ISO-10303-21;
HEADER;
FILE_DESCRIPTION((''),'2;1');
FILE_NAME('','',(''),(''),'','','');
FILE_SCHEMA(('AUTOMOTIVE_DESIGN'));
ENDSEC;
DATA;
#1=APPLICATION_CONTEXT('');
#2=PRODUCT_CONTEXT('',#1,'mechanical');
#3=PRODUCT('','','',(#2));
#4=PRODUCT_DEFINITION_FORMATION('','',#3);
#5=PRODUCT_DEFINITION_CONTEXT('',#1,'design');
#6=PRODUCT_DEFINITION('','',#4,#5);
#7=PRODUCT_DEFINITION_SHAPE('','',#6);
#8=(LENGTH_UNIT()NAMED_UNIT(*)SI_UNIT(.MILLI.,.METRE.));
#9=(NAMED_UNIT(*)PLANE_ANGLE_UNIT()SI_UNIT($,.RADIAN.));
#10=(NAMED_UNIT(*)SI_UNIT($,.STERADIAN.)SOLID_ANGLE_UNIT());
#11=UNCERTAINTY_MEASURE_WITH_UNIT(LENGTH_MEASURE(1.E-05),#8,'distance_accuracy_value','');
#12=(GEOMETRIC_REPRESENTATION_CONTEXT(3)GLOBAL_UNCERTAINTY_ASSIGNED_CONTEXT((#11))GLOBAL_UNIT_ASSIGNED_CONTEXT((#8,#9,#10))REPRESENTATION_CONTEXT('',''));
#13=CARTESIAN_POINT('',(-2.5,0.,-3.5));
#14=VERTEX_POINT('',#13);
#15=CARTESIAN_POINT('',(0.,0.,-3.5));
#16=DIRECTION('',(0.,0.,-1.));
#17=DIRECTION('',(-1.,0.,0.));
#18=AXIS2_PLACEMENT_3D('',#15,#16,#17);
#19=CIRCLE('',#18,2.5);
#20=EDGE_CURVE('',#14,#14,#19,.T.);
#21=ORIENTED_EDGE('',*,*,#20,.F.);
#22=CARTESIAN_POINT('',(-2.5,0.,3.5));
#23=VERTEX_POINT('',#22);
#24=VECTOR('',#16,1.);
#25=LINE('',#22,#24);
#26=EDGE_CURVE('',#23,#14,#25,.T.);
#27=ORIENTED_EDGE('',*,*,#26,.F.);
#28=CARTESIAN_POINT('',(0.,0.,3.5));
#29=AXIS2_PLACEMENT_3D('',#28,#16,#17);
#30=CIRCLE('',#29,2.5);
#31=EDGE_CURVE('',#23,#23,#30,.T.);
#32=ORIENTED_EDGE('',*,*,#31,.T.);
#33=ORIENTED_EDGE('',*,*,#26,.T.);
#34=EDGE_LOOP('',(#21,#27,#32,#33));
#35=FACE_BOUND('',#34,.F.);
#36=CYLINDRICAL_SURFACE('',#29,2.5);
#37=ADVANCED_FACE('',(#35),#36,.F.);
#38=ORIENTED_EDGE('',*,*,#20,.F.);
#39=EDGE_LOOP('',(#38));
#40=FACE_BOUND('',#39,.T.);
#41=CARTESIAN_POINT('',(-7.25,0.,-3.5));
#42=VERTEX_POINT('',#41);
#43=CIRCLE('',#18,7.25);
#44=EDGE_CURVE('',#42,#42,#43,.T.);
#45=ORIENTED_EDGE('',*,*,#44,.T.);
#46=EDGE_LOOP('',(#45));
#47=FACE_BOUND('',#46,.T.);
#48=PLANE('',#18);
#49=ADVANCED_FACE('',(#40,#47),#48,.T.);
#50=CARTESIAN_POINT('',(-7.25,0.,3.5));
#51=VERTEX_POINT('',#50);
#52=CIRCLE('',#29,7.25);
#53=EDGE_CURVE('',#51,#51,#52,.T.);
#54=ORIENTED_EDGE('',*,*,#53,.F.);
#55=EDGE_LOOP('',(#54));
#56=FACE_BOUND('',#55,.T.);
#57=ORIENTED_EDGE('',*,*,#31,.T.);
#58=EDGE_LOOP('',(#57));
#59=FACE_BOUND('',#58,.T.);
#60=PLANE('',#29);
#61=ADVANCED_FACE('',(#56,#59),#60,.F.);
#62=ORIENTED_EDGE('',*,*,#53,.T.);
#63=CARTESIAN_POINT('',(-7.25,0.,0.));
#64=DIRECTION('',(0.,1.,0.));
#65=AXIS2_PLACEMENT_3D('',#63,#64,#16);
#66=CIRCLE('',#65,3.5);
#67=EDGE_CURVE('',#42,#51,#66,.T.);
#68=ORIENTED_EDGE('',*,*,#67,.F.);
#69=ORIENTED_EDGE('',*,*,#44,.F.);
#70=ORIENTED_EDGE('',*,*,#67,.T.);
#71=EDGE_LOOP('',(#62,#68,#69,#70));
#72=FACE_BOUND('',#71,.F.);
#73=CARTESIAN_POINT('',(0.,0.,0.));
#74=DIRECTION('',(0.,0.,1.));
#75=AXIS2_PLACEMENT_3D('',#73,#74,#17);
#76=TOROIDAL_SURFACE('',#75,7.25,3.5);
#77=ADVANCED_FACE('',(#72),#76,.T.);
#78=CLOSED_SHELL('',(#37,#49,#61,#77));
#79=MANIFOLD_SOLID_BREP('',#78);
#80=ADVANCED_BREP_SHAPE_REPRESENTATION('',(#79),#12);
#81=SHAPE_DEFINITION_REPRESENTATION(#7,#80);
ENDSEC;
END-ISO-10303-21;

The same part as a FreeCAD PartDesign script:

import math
import FreeCAD as App
import Part
import Sketcher
from FreeCAD import Vector
Q = App.Units.Quantity

doc = App.newDocument("Part")
body = doc.addObject("PartDesign::Body", "Body")

# Sketch on XZ plane
sketch1 = body.newObject("Sketcher::SketchObject", "Sketch")
sketch1.AttachmentSupport = (doc.getObject("XZ_Plane"), [""])
sketch1.MapMode = "FlatFace"
sketch1.addGeometry([
    Part.LineSegment(Vector(-7.2, 3.5, 0), Vector(-2.5, 3.5, 0)),
    Part.LineSegment(Vector(-2.5, 3.5, 0), Vector(-2.5, -3.5, 0)),
    Part.LineSegment(Vector(-2.5, -3.5, 0), Vector(-7.2, -3.5, 0)),
    Part.ArcOfCircle(Part.Circle(Vector(-7.2, 0, 0), Vector(0, 0, 1), 3.5), math.radians(90), math.radians(270)),
], False)
sketch1.addConstraint([
    Sketcher.Constraint("Coincident", 0, 2, 1, 1),
    Sketcher.Constraint("Coincident", 1, 2, 2, 1),
    Sketcher.Constraint("Tangent", 2, 2, 3, 2),
    Sketcher.Constraint("Tangent", 3, 1, 0, 1),
    Sketcher.Constraint("Horizontal", 0),
    Sketcher.Constraint("Vertical", 1),
    Sketcher.Constraint("Horizontal", 2),
    Sketcher.Constraint("PointOnObject", 3, 3, -1),
    Sketcher.Constraint("Radius", 3, Q("0.1378 in")),
    Sketcher.Constraint("DistanceX", 0, 1, 0, 2, Q("0.187 in")),
    Sketcher.Constraint("DistanceX", 3, 3, -1, 1, 7.25),
])
revolution = body.newObject("PartDesign::Revolution", "Revolution")
revolution.Profile = sketch1
revolution.ReferenceAxis = (sketch1, ["V_Axis"])
revolution.Angle = 360

doc.recompute()
